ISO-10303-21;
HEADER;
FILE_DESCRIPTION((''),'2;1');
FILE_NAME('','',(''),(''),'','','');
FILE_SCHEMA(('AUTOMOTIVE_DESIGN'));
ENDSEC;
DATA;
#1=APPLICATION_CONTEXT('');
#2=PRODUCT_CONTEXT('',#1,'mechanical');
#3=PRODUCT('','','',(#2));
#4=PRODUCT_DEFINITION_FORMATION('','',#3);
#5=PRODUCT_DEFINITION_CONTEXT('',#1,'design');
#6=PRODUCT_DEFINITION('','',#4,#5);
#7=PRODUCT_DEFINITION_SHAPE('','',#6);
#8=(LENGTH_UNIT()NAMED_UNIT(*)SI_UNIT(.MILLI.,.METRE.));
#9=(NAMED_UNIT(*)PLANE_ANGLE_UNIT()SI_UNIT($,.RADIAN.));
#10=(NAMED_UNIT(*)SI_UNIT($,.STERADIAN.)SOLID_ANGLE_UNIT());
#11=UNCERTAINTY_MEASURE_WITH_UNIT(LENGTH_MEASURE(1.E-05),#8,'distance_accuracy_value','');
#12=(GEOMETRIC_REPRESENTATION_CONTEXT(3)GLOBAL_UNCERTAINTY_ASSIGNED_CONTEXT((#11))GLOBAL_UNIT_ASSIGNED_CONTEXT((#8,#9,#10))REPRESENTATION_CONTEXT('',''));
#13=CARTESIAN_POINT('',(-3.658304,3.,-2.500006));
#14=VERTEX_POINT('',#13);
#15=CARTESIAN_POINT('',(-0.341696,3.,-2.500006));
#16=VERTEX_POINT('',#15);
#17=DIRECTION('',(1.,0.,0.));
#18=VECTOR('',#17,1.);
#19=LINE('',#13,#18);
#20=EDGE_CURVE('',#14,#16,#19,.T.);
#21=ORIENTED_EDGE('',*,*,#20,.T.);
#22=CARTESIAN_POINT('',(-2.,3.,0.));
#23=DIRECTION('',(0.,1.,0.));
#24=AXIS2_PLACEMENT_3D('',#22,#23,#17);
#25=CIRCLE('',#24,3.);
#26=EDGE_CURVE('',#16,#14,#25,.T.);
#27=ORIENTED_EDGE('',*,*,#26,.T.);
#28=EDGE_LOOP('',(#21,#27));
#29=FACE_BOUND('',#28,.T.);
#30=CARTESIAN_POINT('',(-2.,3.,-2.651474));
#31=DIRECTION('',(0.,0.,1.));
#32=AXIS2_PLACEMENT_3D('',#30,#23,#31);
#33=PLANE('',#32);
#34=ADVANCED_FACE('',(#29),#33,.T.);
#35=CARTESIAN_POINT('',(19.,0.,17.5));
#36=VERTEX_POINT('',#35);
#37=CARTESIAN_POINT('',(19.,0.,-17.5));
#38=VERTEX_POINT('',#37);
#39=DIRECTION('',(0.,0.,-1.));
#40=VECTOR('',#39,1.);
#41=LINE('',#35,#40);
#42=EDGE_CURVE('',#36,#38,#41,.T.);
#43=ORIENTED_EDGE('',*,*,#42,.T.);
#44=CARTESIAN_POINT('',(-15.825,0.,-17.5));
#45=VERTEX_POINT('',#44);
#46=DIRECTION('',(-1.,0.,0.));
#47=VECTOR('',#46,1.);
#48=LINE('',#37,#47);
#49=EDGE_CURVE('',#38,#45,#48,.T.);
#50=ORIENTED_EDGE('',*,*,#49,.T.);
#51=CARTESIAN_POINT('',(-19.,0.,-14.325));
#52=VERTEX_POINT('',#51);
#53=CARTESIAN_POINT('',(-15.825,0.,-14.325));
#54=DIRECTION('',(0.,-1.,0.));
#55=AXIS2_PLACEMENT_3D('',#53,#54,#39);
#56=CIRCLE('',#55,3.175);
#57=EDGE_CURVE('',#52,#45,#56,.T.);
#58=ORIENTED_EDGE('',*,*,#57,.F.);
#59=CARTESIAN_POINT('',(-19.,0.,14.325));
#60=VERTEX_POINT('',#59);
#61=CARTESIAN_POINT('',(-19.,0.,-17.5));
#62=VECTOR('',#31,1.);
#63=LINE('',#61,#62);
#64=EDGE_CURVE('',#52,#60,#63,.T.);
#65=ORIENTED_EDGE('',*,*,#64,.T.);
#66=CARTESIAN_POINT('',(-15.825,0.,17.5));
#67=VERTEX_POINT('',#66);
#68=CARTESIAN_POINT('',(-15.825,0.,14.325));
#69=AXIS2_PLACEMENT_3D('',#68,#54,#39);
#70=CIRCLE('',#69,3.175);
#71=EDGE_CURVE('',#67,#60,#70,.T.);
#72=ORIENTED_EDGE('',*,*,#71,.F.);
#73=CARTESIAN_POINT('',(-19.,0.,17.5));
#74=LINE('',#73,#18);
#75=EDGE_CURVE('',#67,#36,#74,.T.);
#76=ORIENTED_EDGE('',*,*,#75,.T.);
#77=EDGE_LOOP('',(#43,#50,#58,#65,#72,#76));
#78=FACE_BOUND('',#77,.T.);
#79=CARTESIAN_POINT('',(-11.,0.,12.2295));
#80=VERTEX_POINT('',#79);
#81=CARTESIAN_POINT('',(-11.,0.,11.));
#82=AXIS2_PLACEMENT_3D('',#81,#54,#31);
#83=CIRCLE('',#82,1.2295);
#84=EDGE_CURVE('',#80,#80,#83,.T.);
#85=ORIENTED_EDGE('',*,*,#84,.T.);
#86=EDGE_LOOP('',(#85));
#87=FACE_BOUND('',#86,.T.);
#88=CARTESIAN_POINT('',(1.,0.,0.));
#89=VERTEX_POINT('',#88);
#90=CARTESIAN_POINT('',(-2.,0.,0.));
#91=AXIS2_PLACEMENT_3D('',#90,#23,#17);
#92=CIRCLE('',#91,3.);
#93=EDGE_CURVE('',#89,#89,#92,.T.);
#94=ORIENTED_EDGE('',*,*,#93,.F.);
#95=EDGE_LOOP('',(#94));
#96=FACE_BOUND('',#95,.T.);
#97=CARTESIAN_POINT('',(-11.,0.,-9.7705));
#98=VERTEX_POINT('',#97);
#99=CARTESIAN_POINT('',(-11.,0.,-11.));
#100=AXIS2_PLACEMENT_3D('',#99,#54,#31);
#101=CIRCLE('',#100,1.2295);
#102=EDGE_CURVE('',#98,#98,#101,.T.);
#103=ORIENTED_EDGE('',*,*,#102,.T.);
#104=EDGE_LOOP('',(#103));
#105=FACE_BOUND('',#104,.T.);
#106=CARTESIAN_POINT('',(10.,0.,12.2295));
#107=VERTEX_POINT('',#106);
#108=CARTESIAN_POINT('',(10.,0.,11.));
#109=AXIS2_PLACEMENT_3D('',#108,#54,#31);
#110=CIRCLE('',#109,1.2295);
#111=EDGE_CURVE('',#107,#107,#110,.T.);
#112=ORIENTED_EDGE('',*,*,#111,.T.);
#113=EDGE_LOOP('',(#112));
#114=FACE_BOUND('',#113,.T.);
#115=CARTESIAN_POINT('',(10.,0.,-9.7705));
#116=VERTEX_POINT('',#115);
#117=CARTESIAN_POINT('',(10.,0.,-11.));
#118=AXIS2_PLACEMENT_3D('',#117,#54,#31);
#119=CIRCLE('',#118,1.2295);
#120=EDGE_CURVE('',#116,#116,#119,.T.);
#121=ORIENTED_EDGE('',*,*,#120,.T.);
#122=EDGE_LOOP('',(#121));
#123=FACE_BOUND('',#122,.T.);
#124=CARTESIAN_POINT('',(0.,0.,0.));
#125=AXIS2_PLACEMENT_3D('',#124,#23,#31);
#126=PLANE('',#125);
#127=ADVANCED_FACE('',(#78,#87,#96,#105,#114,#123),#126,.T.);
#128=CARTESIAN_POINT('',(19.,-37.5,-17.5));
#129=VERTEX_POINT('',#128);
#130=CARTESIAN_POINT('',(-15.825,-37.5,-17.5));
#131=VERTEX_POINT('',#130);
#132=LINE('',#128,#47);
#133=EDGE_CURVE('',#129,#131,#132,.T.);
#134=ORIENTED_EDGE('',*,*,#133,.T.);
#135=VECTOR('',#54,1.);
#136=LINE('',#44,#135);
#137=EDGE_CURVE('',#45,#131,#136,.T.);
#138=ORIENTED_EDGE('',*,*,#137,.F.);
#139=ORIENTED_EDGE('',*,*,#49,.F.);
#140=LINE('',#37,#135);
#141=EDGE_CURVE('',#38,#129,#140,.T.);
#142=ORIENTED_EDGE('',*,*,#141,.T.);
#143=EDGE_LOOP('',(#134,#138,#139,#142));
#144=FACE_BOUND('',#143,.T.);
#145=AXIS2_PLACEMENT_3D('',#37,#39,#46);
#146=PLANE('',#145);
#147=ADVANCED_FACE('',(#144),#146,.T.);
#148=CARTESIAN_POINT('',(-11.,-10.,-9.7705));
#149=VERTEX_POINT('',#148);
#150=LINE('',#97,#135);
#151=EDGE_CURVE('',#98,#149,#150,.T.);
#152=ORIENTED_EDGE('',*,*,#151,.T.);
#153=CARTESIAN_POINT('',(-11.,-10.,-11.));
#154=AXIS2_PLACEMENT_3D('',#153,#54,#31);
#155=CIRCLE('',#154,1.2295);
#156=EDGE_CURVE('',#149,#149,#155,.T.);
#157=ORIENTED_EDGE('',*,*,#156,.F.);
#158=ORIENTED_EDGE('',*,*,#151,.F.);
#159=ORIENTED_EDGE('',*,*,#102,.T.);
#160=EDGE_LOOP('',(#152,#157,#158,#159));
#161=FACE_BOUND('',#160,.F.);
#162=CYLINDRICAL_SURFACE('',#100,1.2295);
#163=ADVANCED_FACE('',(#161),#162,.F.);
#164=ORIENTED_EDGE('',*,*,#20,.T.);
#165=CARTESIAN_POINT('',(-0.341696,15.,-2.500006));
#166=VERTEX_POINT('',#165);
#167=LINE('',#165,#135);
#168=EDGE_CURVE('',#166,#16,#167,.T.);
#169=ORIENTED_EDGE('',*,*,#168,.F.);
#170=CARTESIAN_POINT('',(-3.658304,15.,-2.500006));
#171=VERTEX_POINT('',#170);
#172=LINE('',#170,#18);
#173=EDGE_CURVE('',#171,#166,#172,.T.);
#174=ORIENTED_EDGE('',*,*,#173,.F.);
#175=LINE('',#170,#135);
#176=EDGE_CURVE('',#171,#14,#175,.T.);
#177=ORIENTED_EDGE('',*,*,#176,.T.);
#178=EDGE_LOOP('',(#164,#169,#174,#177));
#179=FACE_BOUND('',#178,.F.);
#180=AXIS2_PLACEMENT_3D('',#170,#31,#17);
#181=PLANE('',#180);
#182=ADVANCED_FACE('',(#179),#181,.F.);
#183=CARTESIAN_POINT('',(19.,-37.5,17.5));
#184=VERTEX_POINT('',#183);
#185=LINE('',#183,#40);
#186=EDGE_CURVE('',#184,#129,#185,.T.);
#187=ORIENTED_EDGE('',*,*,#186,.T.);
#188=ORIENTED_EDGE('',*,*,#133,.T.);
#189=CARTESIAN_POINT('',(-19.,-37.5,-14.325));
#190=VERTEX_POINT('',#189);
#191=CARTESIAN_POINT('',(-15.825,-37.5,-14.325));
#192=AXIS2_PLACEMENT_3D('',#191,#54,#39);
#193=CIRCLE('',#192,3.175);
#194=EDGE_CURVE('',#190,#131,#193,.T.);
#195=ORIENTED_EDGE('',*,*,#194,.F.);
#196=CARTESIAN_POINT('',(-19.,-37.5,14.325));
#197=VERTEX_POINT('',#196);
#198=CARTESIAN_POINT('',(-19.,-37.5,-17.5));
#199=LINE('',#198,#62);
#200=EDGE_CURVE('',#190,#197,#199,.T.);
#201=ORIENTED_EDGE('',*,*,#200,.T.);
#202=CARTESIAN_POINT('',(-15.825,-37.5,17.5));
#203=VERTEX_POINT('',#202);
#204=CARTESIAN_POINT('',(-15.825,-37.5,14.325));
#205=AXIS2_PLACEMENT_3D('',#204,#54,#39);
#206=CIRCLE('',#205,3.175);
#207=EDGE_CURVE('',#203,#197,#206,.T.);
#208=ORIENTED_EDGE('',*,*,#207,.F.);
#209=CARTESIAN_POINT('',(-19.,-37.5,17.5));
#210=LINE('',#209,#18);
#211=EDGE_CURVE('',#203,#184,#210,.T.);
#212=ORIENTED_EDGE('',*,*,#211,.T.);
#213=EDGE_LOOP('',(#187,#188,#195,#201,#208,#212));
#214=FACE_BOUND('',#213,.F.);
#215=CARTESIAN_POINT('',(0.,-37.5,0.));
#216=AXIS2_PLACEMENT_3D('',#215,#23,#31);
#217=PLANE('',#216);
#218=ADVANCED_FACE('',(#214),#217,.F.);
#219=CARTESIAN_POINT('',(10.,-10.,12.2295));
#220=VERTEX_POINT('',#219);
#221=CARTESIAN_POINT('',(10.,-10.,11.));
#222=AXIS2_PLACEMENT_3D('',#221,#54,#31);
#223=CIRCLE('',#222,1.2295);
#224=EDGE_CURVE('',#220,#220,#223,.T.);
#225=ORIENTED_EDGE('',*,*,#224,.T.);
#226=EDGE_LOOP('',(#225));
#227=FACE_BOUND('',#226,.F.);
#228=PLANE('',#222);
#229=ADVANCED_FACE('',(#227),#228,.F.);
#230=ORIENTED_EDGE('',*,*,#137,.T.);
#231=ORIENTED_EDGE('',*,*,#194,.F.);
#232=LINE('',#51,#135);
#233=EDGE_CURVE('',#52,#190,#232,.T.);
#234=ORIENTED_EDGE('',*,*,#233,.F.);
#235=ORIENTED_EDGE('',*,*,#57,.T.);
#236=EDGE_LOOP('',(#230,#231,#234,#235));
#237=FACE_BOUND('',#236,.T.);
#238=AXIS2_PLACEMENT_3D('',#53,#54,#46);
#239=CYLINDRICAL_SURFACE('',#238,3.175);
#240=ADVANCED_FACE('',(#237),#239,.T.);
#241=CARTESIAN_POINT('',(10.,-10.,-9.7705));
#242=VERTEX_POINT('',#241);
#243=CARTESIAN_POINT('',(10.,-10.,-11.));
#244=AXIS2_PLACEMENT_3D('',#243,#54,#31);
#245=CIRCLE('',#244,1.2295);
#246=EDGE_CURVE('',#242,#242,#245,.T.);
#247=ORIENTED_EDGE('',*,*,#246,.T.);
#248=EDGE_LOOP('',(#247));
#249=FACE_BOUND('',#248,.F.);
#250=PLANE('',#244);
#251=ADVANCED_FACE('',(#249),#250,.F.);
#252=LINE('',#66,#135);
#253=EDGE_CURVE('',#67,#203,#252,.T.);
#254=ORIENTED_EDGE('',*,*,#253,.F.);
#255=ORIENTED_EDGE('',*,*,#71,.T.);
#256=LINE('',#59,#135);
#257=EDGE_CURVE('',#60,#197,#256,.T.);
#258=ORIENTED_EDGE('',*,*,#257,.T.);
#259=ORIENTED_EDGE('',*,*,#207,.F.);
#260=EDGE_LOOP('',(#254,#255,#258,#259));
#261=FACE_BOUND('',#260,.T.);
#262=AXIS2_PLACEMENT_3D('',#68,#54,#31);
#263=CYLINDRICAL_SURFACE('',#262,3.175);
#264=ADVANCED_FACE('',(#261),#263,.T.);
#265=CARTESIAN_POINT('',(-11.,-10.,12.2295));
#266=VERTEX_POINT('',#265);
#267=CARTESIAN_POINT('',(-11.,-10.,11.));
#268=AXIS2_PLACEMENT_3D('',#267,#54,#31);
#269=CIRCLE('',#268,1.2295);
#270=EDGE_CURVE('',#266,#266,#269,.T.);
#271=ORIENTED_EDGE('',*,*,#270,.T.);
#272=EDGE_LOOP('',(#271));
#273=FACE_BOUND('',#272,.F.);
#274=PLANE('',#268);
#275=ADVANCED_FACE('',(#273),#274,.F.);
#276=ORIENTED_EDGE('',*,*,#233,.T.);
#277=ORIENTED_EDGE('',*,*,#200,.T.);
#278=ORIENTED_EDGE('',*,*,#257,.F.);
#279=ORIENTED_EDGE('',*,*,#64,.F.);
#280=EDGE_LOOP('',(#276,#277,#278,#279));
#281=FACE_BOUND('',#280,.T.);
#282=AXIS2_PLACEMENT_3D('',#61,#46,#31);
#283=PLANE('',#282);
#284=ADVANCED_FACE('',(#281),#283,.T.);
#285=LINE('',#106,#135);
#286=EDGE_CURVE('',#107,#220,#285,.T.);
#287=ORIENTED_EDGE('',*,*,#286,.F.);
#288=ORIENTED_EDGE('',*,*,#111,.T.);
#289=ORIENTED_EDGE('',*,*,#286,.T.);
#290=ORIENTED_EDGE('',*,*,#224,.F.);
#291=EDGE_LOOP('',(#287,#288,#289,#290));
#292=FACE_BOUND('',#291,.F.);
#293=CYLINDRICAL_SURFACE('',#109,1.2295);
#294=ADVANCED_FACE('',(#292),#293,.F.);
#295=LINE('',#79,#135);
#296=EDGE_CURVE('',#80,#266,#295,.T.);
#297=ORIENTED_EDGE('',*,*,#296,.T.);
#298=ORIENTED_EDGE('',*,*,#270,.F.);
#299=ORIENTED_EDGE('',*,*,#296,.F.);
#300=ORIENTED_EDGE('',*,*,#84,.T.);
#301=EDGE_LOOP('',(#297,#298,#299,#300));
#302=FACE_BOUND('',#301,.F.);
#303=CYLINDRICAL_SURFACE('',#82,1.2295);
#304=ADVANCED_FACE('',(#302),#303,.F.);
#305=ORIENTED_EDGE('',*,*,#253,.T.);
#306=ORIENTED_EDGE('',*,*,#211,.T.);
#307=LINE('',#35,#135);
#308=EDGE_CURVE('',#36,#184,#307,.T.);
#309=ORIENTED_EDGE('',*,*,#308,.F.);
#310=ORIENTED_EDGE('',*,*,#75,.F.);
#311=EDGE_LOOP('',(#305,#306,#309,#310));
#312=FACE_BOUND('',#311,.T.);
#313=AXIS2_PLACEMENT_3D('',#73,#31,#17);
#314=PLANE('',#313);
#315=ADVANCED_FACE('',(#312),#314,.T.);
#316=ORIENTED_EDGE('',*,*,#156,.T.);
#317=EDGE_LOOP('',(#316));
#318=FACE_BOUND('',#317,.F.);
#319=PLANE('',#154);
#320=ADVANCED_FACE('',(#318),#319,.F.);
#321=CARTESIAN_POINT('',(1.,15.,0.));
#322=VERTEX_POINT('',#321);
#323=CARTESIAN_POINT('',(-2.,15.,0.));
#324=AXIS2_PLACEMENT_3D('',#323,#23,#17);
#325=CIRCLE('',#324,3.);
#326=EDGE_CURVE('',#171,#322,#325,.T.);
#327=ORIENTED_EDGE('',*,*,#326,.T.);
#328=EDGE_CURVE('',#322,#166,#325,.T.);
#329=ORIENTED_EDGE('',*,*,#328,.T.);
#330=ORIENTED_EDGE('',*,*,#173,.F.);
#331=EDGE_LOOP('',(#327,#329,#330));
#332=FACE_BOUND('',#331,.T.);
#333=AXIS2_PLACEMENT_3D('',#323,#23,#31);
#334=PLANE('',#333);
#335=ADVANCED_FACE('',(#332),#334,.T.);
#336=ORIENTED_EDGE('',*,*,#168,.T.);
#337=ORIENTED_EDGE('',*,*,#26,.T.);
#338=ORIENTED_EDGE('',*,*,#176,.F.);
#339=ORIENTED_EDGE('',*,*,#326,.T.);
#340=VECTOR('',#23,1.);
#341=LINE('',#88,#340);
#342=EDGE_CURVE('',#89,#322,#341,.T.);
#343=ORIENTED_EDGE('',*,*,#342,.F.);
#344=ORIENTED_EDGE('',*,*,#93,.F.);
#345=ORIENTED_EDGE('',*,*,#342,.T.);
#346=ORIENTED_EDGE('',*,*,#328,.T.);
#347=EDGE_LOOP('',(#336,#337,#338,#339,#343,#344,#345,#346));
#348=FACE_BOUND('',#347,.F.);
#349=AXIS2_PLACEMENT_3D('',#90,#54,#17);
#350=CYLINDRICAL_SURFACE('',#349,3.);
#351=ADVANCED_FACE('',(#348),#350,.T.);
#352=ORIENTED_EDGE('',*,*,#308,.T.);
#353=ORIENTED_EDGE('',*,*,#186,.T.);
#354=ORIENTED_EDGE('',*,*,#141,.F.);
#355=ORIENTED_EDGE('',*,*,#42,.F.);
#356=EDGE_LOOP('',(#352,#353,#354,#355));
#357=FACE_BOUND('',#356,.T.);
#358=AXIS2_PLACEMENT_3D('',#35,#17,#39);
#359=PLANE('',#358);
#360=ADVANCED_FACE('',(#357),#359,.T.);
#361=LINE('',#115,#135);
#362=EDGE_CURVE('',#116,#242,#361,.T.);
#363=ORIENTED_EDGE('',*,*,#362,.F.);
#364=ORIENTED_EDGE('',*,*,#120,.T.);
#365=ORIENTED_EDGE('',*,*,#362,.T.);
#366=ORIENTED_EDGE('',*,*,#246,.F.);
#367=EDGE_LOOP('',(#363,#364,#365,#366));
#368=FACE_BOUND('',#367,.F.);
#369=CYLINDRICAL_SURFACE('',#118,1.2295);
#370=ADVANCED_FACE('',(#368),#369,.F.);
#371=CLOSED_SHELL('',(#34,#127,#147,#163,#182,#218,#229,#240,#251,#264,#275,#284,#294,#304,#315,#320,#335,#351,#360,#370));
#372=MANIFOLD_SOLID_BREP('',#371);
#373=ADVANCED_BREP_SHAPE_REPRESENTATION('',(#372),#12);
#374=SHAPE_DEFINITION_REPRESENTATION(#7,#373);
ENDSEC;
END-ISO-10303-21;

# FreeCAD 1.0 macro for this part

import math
import FreeCAD as App
import Part
import Sketcher


def edges_at(feature, points):
    """Names of the edges that pass closest to the given points."""
    edges = feature.Shape.Edges
    near = lambda p: min(range(len(edges)), key=lambda i: edges[i].distToShape(Part.Vertex(*p))[0])
    return sorted({f"Edge{near(p) + 1}" for p in points})


def add_polygon(sketch, points):
    """Adds a closed chain of lines whose ends are joined by coincident constraints."""
    first, n = sketch.GeometryCount, len(points)
    for a, b in zip(points, points[1:] + points[:1]):
        sketch.addGeometry(Part.LineSegment(App.Vector(*a, 0), App.Vector(*b, 0)), False)
    for i in range(n):
        sketch.addConstraint(Sketcher.Constraint("Coincident", first + i, 2, first + (i + 1) % n, 1))

doc = App.newDocument("Part")
body = doc.addObject("PartDesign::Body", "Body")

# Sketch on XZ plane
sketch1 = body.newObject("Sketcher::SketchObject", "Sketch")
sketch1.AttachmentSupport = (doc.getObject("XZ_Plane"), [""])
sketch1.MapMode = "FlatFace"
add_polygon(sketch1, [(19, 18), (-19, 18), (-19, -18), (19, -18)])  # lines 0-3
sketch1.addConstraint(Sketcher.Constraint("Horizontal", 0))
sketch1.addConstraint(Sketcher.Constraint("Vertical", 1))
sketch1.addConstraint(Sketcher.Constraint("Horizontal", 2))
sketch1.addConstraint(Sketcher.Constraint("Vertical", 3))
sketch1.addConstraint(Sketcher.Constraint("Symmetric", 0, 2, 2, 2, -1, 1))
sketch1.addConstraint(Sketcher.Constraint("DistanceX", 0, 2, 0, 1, 38.0))
sketch1.addConstraint(Sketcher.Constraint("DistanceY", 1, 2, 1, 1, 35.0))
pad1 = body.newObject("PartDesign::Pad", "Pad")
pad1.Profile = sketch1
pad1.Length = 37.5

# Sketch on XZ plane
sketch2 = body.newObject("Sketcher::SketchObject", "Sketch001")
sketch2.AttachmentSupport = (doc.getObject("XZ_Plane"), [""])
sketch2.MapMode = "FlatFace"
sketch2.addGeometry(Part.Circle(App.Vector(10, -11, 0), App.Vector(0, 0, 1), 1.2), False)
sketch2.addConstraint(Sketcher.Constraint("Diameter", 0, 2.459))
sketch2.addConstraint(Sketcher.Constraint("DistanceX", -1, 1, 0, 3, 10.0))
sketch2.addConstraint(Sketcher.Constraint("DistanceY", 0, 3, -1, 1, 11.0))
doc.recompute()
hole = body.newObject("PartDesign::Hole", "Hole")
hole.Profile = sketch2
hole.ThreadType = "None"
hole.Diameter = 2.459
hole.DepthType = "Dimension"
hole.Depth = 10
hole.DrillPoint = "Flat"
hole.Reversed = True

# Sketch on XZ plane
sketch3 = body.newObject("Sketcher::SketchObject", "Sketch002")
sketch3.AttachmentSupport = (doc.getObject("XZ_Plane"), [""])
sketch3.MapMode = "FlatFace"
sketch3.addGeometry(Part.Circle(App.Vector(-11, 11, 0), App.Vector(0, 0, 1), 1.2), False)
sketch3.addConstraint(Sketcher.Constraint("Diameter", 0, 2.459))
sketch3.addConstraint(Sketcher.Constraint("DistanceX", 0, 3, -1, 1, 11.0))
sketch3.addConstraint(Sketcher.Constraint("DistanceY", -1, 1, 0, 3, 11.0))
doc.recompute()
hole2 = body.newObject("PartDesign::Hole", "Hole001")
hole2.Profile = sketch3
hole2.ThreadType = "None"
hole2.Diameter = 2.459
hole2.DepthType = "Dimension"
hole2.Depth = 10
hole2.DrillPoint = "Flat"
hole2.Reversed = True

# Sketch on XZ plane
sketch4 = body.newObject("Sketcher::SketchObject", "Sketch003")
sketch4.AttachmentSupport = (doc.getObject("XZ_Plane"), [""])
sketch4.MapMode = "FlatFace"
sketch4.addGeometry(Part.Circle(App.Vector(10, 11, 0), App.Vector(0, 0, 1), 1.2), False)
sketch4.addConstraint(Sketcher.Constraint("Diameter", 0, 2.459))
sketch4.addConstraint(Sketcher.Constraint("DistanceX", -1, 1, 0, 3, 10.0))
sketch4.addConstraint(Sketcher.Constraint("DistanceY", -1, 1, 0, 3, 11.0))
doc.recompute()
hole3 = body.newObject("PartDesign::Hole", "Hole002")
hole3.Profile = sketch4
hole3.ThreadType = "None"
hole3.Diameter = 2.459
hole3.DepthType = "Dimension"
hole3.Depth = 10
hole3.DrillPoint = "Flat"
hole3.Reversed = True

# Sketch on XZ plane
sketch5 = body.newObject("Sketcher::SketchObject", "Sketch004")
sketch5.AttachmentSupport = (doc.getObject("XZ_Plane"), [""])
sketch5.MapMode = "FlatFace"
sketch5.addGeometry(Part.Circle(App.Vector(-11, -11, 0), App.Vector(0, 0, 1), 1.2), False)
sketch5.addConstraint(Sketcher.Constraint("Diameter", 0, 2.459))
sketch5.addConstraint(Sketcher.Constraint("DistanceX", 0, 3, -1, 1, 11.0))
sketch5.addConstraint(Sketcher.Constraint("DistanceY", 0, 3, -1, 1, 11.0))
doc.recompute()
hole4 = body.newObject("PartDesign::Hole", "Hole003")
hole4.Profile = sketch5
hole4.ThreadType = "None"
hole4.Diameter = 2.459
hole4.DepthType = "Dimension"
hole4.Depth = 10
hole4.DrillPoint = "Flat"
hole4.Reversed = True
doc.recompute()

fillet = body.newObject("PartDesign::Fillet", "Fillet")
fillet.Base = (hole4, edges_at(hole4, [(-19, -18.75, -17.5), (-19, -18.75, 17.5)]))
fillet.Radius = 3.175

# Sketch on XZ plane
sketch6 = body.newObject("Sketcher::SketchObject", "Sketch005")
sketch6.AttachmentSupport = (doc.getObject("XZ_Plane"), [""])
sketch6.MapMode = "FlatFace"
sketch6.addGeometry(Part.Circle(App.Vector(-2, 0, 0), App.Vector(0, 0, 1), 3), False)
sketch6.addConstraint(Sketcher.Constraint("PointOnObject", 0, 3, -1))
sketch6.addConstraint(Sketcher.Constraint("Diameter", 0, 6.0))
sketch6.addConstraint(Sketcher.Constraint("DistanceX", 0, 3, -1, 1, 2.0))
pad2 = body.newObject("PartDesign::Pad", "Pad001")
pad2.Profile = sketch6
pad2.Length = 15
pad2.Reversed = True

# Sketch on XZ plane
sketch7 = body.newObject("Sketcher::SketchObject", "Sketch006")
sketch7.AttachmentSupport = (doc.getObject("XZ_Plane"), [""])
sketch7.MapMode = "FlatFace"
sketch7.AttachmentOffset = App.Placement(App.Vector(0, 0, -15), App.Rotation())
sketch7.addGeometry(Part.ArcOfCircle(Part.Circle(App.Vector(-2, 0, 0), App.Vector(0, 0, 1), 3), math.radians(-124), math.radians(-56)), False)
sketch7.addGeometry(Part.LineSegment(App.Vector(-3.7, -2.5, 0), App.Vector(-0.3, -2.5, 0)), False)
sketch7.addConstraint(Sketcher.Constraint("Coincident", 0, 1, 1, 1))
sketch7.addConstraint(Sketcher.Constraint("Coincident", 1, 2, 0, 2))
sketch7.addConstraint(Sketcher.Constraint("Horizontal", 1))
sketch7.addConstraint(Sketcher.Constraint("PointOnObject", 0, 3, -1))
sketch7.addConstraint(Sketcher.Constraint("Radius", 0, 3.0))
sketch7.addConstraint(Sketcher.Constraint("DistanceX", 0, 3, -1, 1, 2.0))
sketch7.addConstraint(Sketcher.Constraint("DistanceY", 0, 1, -1, 1, 2.5))
pocket1 = body.newObject("PartDesign::Pocket", "Pocket")
pocket1.Profile = sketch7
pocket1.Length = 12
pocket1.Reversed = True

doc.recompute()
